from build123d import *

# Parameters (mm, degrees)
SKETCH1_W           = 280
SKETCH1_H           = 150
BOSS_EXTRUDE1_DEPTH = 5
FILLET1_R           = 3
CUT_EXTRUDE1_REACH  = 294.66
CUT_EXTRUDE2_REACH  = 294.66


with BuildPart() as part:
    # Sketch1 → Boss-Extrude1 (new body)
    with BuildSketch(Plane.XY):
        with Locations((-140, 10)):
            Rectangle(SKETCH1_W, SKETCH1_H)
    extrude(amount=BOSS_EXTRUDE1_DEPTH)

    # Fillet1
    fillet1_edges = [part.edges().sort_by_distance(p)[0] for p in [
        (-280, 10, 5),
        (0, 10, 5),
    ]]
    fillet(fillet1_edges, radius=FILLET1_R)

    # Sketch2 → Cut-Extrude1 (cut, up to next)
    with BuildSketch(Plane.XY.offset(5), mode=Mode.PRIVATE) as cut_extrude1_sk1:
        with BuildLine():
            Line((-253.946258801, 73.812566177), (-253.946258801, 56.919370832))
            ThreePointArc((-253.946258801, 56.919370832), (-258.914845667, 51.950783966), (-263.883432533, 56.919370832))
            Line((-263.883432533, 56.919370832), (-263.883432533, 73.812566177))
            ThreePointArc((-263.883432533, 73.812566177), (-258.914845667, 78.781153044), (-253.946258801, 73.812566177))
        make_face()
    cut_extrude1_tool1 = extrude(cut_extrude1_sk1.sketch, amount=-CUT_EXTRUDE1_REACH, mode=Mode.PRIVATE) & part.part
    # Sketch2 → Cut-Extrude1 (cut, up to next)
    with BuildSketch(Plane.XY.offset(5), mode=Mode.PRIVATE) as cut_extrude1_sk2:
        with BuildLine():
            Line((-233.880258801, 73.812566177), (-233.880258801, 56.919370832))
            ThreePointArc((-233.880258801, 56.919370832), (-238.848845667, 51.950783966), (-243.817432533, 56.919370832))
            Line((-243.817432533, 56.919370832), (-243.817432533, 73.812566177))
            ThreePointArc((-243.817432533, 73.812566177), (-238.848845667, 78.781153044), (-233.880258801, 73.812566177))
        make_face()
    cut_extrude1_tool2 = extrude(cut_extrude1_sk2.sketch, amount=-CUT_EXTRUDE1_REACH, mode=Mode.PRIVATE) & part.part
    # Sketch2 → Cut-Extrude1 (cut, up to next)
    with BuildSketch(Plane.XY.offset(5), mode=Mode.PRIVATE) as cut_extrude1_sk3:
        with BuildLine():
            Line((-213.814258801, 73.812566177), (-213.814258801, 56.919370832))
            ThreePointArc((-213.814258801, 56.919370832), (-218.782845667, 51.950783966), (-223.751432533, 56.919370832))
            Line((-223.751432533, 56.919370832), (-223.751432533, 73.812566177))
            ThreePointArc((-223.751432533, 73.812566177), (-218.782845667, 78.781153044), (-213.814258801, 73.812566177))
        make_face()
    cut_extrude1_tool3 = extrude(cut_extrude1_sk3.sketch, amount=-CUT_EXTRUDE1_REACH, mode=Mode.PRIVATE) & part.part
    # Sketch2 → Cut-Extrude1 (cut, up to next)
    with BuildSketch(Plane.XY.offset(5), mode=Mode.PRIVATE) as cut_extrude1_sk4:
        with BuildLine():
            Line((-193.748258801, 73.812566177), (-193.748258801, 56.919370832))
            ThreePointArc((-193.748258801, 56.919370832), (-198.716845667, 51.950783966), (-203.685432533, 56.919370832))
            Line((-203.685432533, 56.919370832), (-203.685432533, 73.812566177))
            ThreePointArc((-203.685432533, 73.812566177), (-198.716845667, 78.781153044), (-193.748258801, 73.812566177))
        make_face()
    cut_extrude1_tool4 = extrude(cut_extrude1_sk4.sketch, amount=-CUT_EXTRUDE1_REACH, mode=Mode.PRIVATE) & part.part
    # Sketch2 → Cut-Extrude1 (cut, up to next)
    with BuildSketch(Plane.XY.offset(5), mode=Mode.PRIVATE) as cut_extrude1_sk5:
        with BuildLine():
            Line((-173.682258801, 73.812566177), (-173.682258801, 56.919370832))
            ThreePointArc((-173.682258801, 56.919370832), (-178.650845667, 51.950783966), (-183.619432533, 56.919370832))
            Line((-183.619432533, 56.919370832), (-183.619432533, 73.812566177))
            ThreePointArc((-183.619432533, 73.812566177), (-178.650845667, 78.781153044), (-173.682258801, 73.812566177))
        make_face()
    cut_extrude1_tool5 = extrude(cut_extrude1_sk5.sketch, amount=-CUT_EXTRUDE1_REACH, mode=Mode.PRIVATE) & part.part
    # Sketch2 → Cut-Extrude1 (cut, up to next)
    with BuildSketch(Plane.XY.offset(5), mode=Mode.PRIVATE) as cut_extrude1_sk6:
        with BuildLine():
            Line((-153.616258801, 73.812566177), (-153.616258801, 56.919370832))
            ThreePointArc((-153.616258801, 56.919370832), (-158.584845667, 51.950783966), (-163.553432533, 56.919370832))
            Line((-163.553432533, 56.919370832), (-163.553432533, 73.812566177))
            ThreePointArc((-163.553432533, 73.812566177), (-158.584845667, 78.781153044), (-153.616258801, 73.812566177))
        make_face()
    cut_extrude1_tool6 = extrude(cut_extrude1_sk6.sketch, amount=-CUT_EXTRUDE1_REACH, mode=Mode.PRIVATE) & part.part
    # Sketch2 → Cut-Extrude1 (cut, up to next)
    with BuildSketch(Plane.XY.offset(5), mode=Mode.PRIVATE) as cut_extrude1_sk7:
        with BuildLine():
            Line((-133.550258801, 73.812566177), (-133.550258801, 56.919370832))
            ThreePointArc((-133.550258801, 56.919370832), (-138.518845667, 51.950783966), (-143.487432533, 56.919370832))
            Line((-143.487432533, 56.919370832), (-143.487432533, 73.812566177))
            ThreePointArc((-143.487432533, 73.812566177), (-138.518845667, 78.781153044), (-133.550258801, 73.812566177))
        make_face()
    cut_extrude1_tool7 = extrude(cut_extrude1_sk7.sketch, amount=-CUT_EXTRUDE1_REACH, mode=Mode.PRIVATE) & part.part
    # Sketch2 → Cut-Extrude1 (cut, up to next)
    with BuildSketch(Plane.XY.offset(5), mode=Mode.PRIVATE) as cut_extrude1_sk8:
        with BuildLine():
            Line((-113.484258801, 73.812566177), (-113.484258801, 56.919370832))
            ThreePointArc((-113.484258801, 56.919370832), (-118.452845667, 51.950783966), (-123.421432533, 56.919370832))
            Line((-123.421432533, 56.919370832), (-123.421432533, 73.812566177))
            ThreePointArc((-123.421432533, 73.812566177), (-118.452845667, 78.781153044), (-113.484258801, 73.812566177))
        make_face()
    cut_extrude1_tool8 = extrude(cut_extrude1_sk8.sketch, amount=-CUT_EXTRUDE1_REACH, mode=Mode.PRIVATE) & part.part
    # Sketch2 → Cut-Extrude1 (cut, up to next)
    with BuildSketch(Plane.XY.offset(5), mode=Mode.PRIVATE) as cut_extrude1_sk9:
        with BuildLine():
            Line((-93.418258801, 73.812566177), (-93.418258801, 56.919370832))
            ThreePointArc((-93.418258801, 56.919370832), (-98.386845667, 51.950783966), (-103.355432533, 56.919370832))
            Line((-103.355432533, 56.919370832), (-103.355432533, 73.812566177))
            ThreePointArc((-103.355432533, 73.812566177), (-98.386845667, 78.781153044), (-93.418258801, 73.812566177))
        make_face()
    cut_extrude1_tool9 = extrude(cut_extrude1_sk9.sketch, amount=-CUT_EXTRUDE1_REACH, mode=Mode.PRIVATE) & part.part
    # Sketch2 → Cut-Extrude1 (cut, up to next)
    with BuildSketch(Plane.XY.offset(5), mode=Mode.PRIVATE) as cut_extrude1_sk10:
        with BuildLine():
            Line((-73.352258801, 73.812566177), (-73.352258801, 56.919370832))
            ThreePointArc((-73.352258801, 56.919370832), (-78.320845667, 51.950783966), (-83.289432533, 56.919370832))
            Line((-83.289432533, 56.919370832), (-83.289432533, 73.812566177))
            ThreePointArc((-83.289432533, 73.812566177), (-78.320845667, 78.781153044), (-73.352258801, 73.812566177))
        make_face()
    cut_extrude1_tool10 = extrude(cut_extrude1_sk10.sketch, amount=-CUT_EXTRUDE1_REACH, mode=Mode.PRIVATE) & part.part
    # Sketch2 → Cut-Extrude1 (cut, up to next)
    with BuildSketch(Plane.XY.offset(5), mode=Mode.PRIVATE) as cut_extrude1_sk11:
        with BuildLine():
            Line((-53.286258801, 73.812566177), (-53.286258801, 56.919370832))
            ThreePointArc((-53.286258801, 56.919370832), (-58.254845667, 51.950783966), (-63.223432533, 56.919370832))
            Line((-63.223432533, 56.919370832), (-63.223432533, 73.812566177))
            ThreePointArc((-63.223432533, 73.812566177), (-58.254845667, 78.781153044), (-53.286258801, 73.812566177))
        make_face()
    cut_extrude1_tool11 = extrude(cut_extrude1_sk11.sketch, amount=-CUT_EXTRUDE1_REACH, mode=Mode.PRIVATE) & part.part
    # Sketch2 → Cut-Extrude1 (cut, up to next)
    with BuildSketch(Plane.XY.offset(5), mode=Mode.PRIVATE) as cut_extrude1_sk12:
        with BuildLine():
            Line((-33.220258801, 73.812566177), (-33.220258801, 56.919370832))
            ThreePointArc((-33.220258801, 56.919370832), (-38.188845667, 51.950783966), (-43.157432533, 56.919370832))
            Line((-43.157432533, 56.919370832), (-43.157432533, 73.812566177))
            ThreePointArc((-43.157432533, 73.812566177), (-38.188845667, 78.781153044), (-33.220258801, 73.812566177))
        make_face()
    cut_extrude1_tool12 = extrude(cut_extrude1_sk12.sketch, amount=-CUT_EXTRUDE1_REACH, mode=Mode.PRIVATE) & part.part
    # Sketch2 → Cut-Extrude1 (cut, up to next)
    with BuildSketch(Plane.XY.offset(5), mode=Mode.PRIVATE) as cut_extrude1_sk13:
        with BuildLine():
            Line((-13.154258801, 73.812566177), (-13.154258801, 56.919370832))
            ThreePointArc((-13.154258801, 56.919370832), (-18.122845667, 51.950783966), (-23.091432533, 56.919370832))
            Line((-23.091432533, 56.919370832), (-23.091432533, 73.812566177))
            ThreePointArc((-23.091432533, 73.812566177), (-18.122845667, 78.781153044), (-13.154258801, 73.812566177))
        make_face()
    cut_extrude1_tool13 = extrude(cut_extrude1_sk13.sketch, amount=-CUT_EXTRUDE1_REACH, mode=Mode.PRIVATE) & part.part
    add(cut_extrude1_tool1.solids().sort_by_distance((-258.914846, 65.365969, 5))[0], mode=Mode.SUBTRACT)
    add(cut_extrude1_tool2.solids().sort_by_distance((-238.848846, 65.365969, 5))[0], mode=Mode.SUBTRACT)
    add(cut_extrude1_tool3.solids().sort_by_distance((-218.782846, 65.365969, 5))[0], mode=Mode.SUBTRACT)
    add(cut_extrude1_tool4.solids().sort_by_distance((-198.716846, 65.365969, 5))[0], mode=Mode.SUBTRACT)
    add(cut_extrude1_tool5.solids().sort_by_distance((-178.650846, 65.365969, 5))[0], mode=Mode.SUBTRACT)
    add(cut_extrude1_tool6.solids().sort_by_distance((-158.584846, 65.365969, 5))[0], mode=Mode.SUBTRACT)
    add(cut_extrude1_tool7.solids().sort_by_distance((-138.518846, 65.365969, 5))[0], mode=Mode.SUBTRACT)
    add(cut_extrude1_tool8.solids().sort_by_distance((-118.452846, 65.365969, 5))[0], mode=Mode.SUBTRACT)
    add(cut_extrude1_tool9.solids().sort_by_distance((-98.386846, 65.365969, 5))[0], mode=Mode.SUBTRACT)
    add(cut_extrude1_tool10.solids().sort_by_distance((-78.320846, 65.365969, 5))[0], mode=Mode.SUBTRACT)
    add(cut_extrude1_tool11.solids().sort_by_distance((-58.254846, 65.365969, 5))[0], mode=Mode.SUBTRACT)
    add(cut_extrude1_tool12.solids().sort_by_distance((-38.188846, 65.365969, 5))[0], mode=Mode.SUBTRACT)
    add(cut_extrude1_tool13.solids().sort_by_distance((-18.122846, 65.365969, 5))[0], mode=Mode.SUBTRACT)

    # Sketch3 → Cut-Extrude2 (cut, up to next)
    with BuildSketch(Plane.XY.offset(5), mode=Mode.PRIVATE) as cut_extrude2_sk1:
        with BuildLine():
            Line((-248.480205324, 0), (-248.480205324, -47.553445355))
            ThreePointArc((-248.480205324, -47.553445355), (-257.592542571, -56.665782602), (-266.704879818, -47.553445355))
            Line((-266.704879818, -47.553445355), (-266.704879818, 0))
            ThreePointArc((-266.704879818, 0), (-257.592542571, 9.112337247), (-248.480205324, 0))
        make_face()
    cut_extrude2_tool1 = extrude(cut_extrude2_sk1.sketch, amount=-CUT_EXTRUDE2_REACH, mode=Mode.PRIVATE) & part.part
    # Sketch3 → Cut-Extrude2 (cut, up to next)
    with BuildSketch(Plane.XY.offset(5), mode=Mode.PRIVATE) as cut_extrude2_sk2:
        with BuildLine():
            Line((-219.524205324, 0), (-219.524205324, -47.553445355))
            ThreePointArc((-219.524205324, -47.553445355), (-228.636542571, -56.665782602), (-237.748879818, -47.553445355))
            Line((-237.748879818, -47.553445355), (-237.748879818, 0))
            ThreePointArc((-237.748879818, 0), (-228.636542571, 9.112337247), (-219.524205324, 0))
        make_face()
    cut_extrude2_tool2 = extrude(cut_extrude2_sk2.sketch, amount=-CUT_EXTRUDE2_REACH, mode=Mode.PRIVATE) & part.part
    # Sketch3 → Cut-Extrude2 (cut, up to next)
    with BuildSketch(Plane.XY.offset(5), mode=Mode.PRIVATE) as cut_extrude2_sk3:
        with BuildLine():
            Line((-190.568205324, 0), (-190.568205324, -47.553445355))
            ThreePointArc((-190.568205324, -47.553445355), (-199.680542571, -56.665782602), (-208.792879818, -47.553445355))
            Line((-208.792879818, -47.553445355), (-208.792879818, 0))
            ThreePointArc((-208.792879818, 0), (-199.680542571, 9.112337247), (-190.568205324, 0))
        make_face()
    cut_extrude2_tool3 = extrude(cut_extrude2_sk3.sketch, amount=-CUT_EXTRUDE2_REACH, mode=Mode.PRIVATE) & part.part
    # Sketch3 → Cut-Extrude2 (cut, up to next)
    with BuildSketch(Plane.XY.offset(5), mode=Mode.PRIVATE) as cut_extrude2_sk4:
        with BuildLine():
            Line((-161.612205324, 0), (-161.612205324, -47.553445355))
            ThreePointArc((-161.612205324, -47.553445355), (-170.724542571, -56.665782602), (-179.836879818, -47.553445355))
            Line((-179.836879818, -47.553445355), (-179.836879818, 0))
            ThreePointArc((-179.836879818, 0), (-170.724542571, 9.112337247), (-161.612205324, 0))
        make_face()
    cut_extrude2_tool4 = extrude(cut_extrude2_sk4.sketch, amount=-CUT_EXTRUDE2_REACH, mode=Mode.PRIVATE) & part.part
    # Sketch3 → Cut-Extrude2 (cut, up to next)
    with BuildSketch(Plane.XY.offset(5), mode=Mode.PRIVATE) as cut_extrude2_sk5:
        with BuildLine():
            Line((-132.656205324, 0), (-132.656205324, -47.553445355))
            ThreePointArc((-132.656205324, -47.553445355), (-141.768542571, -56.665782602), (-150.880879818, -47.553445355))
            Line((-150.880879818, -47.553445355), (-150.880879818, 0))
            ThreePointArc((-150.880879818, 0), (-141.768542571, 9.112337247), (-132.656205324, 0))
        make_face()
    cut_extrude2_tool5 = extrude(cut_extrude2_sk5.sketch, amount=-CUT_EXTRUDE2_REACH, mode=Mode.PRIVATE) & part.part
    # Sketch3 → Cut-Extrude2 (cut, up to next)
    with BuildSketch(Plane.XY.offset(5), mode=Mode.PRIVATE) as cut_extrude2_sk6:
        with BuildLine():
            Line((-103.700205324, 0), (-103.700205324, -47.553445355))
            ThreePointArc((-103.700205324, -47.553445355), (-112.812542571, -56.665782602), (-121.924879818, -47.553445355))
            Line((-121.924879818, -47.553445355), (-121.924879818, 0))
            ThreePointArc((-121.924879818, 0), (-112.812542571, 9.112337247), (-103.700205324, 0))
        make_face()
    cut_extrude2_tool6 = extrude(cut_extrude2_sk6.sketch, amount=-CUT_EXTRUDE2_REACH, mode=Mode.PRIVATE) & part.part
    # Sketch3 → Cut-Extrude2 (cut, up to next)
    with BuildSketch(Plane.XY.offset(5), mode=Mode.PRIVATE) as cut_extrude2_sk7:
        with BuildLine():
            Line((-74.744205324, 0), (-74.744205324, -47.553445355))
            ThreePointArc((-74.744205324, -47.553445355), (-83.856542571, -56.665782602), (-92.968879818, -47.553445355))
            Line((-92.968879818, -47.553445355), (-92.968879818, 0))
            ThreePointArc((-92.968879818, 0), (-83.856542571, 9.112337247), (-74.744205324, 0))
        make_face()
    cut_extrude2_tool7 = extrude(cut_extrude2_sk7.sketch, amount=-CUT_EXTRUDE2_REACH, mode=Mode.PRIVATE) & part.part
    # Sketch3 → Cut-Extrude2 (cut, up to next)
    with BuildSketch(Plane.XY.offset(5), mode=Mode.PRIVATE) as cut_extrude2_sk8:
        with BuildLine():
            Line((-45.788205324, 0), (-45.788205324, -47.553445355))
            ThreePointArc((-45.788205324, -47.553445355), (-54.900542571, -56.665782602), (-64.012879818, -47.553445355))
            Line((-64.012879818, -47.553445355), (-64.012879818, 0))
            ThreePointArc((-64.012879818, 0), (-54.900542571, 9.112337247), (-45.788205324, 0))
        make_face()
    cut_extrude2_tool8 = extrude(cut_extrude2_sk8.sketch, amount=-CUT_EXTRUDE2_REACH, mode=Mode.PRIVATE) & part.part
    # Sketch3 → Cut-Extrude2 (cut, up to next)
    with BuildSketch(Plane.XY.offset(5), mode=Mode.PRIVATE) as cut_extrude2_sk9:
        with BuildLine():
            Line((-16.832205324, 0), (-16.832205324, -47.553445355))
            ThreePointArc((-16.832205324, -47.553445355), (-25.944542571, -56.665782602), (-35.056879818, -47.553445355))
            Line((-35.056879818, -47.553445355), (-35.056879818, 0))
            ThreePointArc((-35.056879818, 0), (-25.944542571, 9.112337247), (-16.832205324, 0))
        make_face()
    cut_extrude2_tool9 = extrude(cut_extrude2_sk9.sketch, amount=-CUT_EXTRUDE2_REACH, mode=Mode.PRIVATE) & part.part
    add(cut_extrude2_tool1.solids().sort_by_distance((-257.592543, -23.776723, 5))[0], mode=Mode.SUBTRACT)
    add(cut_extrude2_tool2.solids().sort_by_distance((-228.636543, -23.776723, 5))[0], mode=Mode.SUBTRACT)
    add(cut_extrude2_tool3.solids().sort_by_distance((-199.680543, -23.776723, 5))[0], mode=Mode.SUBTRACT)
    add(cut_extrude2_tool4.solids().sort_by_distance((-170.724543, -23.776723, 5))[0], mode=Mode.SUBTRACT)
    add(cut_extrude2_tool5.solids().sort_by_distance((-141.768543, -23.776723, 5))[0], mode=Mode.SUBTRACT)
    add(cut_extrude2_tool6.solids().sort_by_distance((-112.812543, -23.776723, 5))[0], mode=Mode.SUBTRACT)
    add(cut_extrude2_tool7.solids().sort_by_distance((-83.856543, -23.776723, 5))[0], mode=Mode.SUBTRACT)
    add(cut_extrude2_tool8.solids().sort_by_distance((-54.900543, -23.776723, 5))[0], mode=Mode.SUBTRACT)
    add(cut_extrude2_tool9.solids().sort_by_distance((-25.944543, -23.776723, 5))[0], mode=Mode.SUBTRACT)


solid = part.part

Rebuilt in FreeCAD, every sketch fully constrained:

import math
import FreeCAD as App
import Part
import Sketcher


def edges_at(feature, points):
    """Names of the edges that pass closest to the given points."""
    edges = feature.Shape.Edges
    near = lambda p: min(range(len(edges)), key=lambda i: edges[i].distToShape(Part.Vertex(*p))[0])
    return sorted({f"Edge{near(p) + 1}" for p in points})

doc = App.newDocument("Part")
body = doc.addObject("PartDesign::Body", "Body")

sketch1 = body.newObject("Sketcher::SketchObject", "Sketch")
sketch1.AttachmentSupport = (doc.getObject("XY_Plane"), [""])
sketch1.MapMode = "FlatFace"
sketch1.addGeometry(Part.LineSegment(App.Vector(-280, 85, 0), App.Vector(-280, -65, 0)), False)
sketch1.addGeometry(Part.LineSegment(App.Vector(-280, -65, 0), App.Vector(0, -65, 0)), False)
sketch1.addGeometry(Part.LineSegment(App.Vector(0, -65, 0), App.Vector(0, 85, 0)), False)
sketch1.addGeometry(Part.LineSegment(App.Vector(0, 85, 0), App.Vector(-280, 85, 0)), False)
sketch1.addConstraint(Sketcher.Constraint("Coincident", 0, 2, 1, 1))
sketch1.addConstraint(Sketcher.Constraint("Coincident", 1, 2, 2, 1))
sketch1.addConstraint(Sketcher.Constraint("Coincident", 2, 2, 3, 1))
sketch1.addConstraint(Sketcher.Constraint("Coincident", 3, 2, 0, 1))
sketch1.addConstraint(Sketcher.Constraint("Vertical", 0))
sketch1.addConstraint(Sketcher.Constraint("Horizontal", 1))
sketch1.addConstraint(Sketcher.Constraint("Vertical", 2))
sketch1.addConstraint(Sketcher.Constraint("Horizontal", 3))
sketch1.addConstraint(Sketcher.Constraint("PointOnObject", 1, 2, -2))
sketch1.addConstraint(Sketcher.Constraint("DistanceX", 1, 1, 1, 2, 280.0))
sketch1.addConstraint(Sketcher.Constraint("DistanceY", 0, 2, 0, 1, 150.0))
sketch1.addConstraint(Sketcher.Constraint("DistanceY", 0, 2, -1, 1, 65.0))
pad1 = body.newObject("PartDesign::Pad", "Pad")
pad1.Profile = sketch1
pad1.Length = 5
doc.recompute()

fillet = body.newObject("PartDesign::Fillet", "Fillet")
fillet.Base = (pad1, edges_at(pad1, [(-280, 10, 5), (0, 10, 5)]))
fillet.Radius = 3

sketch2 = body.newObject("Sketcher::SketchObject", "Sketch001")
sketch2.AttachmentSupport = (doc.getObject("XY_Plane"), [""])
sketch2.MapMode = "FlatFace"
sketch2.AttachmentOffset = App.Placement(App.Vector(0, 0, 5), App.Rotation())
sketch2.addGeometry(Part.LineSegment(App.Vector(-253.9, 56.9, 0), App.Vector(-253.9, 73.8, 0)), False)
sketch2.addGeometry(Part.ArcOfCircle(Part.Circle(App.Vector(-258.9, 73.8, 0), App.Vector(0, 0, 1), 5), math.radians(0), math.radians(180)), False)
sketch2.addGeometry(Part.LineSegment(App.Vector(-263.9, 73.8, 0), App.Vector(-263.9, 56.9, 0)), False)
sketch2.addGeometry(Part.ArcOfCircle(Part.Circle(App.Vector(-258.9, 56.9, 0), App.Vector(0, 0, 1), 5), math.radians(180), math.radians(360)), False)
sketch2.addConstraint(Sketcher.Constraint("Tangent", 0, 2, 1, 1))
sketch2.addConstraint(Sketcher.Constraint("Tangent", 1, 2, 2, 1))
sketch2.addConstraint(Sketcher.Constraint("Tangent", 2, 2, 3, 1))
sketch2.addConstraint(Sketcher.Constraint("Tangent", 3, 2, 0, 1))
sketch2.addConstraint(Sketcher.Constraint("Vertical", 0))
sketch2.addConstraint(Sketcher.Constraint("Vertical", 2))
sketch2.addConstraint(Sketcher.Constraint("Radius", 1, 4.968587))
sketch2.addConstraint(Sketcher.Constraint("DistanceY", 0, 1, 0, 2, 16.893195))
sketch2.addConstraint(Sketcher.Constraint("DistanceY", -1, 1, 3, 3, 56.919371))
sketch2.addConstraint(Sketcher.Constraint("DistanceX", 0, 2, -1, 1, 253.946259))
pocket1 = body.newObject("PartDesign::Pocket", "Pocket")
pocket1.Profile = sketch2
pocket1.Type = "UpToFirst"

sketch3 = body.newObject("Sketcher::SketchObject", "Sketch002")
sketch3.AttachmentSupport = (doc.getObject("XY_Plane"), [""])
sketch3.MapMode = "FlatFace"
sketch3.AttachmentOffset = App.Placement(App.Vector(0, 0, 5), App.Rotation())
sketch3.addGeometry(Part.LineSegment(App.Vector(-233.9, 56.9, 0), App.Vector(-233.9, 73.8, 0)), False)
sketch3.addGeometry(Part.ArcOfCircle(Part.Circle(App.Vector(-238.8, 73.8, 0), App.Vector(0, 0, 1), 5), math.radians(0), math.radians(180)), False)
sketch3.addGeometry(Part.LineSegment(App.Vector(-243.8, 73.8, 0), App.Vector(-243.8, 56.9, 0)), False)
sketch3.addGeometry(Part.ArcOfCircle(Part.Circle(App.Vector(-238.8, 56.9, 0), App.Vector(0, 0, 1), 5), math.radians(180), math.radians(360)), False)
sketch3.addConstraint(Sketcher.Constraint("Tangent", 0, 2, 1, 1))
sketch3.addConstraint(Sketcher.Constraint("Tangent", 1, 2, 2, 1))
sketch3.addConstraint(Sketcher.Constraint("Tangent", 2, 2, 3, 1))
sketch3.addConstraint(Sketcher.Constraint("Tangent", 3, 2, 0, 1))
sketch3.addConstraint(Sketcher.Constraint("Vertical", 0))
sketch3.addConstraint(Sketcher.Constraint("Vertical", 2))
sketch3.addConstraint(Sketcher.Constraint("Radius", 1, 4.968587))
sketch3.addConstraint(Sketcher.Constraint("DistanceY", 0, 1, 0, 2, 16.893195))
sketch3.addConstraint(Sketcher.Constraint("DistanceY", -1, 1, 3, 3, 56.919371))
sketch3.addConstraint(Sketcher.Constraint("DistanceX", 0, 2, -1, 1, 233.880259))
pocket2 = body.newObject("PartDesign::Pocket", "Pocket001")
pocket2.Profile = sketch3
pocket2.Type = "UpToFirst"

sketch4 = body.newObject("Sketcher::SketchObject", "Sketch003")
sketch4.AttachmentSupport = (doc.getObject("XY_Plane"), [""])
sketch4.MapMode = "FlatFace"
sketch4.AttachmentOffset = App.Placement(App.Vector(0, 0, 5), App.Rotation())
sketch4.addGeometry(Part.LineSegment(App.Vector(-213.8, 56.9, 0), App.Vector(-213.8, 73.8, 0)), False)
sketch4.addGeometry(Part.ArcOfCircle(Part.Circle(App.Vector(-218.8, 73.8, 0), App.Vector(0, 0, 1), 5), math.radians(0), math.radians(180)), False)
sketch4.addGeometry(Part.LineSegment(App.Vector(-223.8, 73.8, 0), App.Vector(-223.8, 56.9, 0)), False)
sketch4.addGeometry(Part.ArcOfCircle(Part.Circle(App.Vector(-218.8, 56.9, 0), App.Vector(0, 0, 1), 5), math.radians(180), math.radians(360)), False)
sketch4.addConstraint(Sketcher.Constraint("Tangent", 0, 2, 1, 1))
sketch4.addConstraint(Sketcher.Constraint("Tangent", 1, 2, 2, 1))
sketch4.addConstraint(Sketcher.Constraint("Tangent", 2, 2, 3, 1))
sketch4.addConstraint(Sketcher.Constraint("Tangent", 3, 2, 0, 1))
sketch4.addConstraint(Sketcher.Constraint("Vertical", 0))
sketch4.addConstraint(Sketcher.Constraint("Vertical", 2))
sketch4.addConstraint(Sketcher.Constraint("Radius", 1, 4.968587))
sketch4.addConstraint(Sketcher.Constraint("DistanceY", 0, 1, 0, 2, 16.893195))
sketch4.addConstraint(Sketcher.Constraint("DistanceY", -1, 1, 3, 3, 56.919371))
sketch4.addConstraint(Sketcher.Constraint("DistanceX", 0, 2, -1, 1, 213.814259))
pocket3 = body.newObject("PartDesign::Pocket", "Pocket002")
pocket3.Profile = sketch4
pocket3.Type = "UpToFirst"

sketch5 = body.newObject("Sketcher::SketchObject", "Sketch004")
sketch5.AttachmentSupport = (doc.getObject("XY_Plane"), [""])
sketch5.MapMode = "FlatFace"
sketch5.AttachmentOffset = App.Placement(App.Vector(0, 0, 5), App.Rotation())
sketch5.addGeometry(Part.LineSegment(App.Vector(-193.7, 56.9, 0), App.Vector(-193.7, 73.8, 0)), False)
sketch5.addGeometry(Part.ArcOfCircle(Part.Circle(App.Vector(-198.7, 73.8, 0), App.Vector(0, 0, 1), 5), math.radians(0), math.radians(180)), False)
sketch5.addGeometry(Part.LineSegment(App.Vector(-203.7, 73.8, 0), App.Vector(-203.7, 56.9, 0)), False)
sketch5.addGeometry(Part.ArcOfCircle(Part.Circle(App.Vector(-198.7, 56.9, 0), App.Vector(0, 0, 1), 5), math.radians(180), math.radians(360)), False)
sketch5.addConstraint(Sketcher.Constraint("Tangent", 0, 2, 1, 1))
sketch5.addConstraint(Sketcher.Constraint("Tangent", 1, 2, 2, 1))
sketch5.addConstraint(Sketcher.Constraint("Tangent", 2, 2, 3, 1))
sketch5.addConstraint(Sketcher.Constraint("Tangent", 3, 2, 0, 1))
sketch5.addConstraint(Sketcher.Constraint("Vertical", 0))
sketch5.addConstraint(Sketcher.Constraint("Vertical", 2))
sketch5.addConstraint(Sketcher.Constraint("Radius", 1, 4.968587))
sketch5.addConstraint(Sketcher.Constraint("DistanceY", 0, 1, 0, 2, 16.893195))
sketch5.addConstraint(Sketcher.Constraint("DistanceY", -1, 1, 3, 3, 56.919371))
sketch5.addConstraint(Sketcher.Constraint("DistanceX", 0, 2, -1, 1, 193.748259))
pocket4 = body.newObject("PartDesign::Pocket", "Pocket003")
pocket4.Profile = sketch5
pocket4.Type = "UpToFirst"

sketch6 = body.newObject("Sketcher::SketchObject", "Sketch005")
sketch6.AttachmentSupport = (doc.getObject("XY_Plane"), [""])
sketch6.MapMode = "FlatFace"
sketch6.AttachmentOffset = App.Placement(App.Vector(0, 0, 5), App.Rotation())
sketch6.addGeometry(Part.LineSegment(App.Vector(-173.7, 56.9, 0), App.Vector(-173.7, 73.8, 0)), False)
sketch6.addGeometry(Part.ArcOfCircle(Part.Circle(App.Vector(-178.7, 73.8, 0), App.Vector(0, 0, 1), 5), math.radians(0), math.radians(180)), False)
sketch6.addGeometry(Part.LineSegment(App.Vector(-183.6, 73.8, 0), App.Vector(-183.6, 56.9, 0)), False)
sketch6.addGeometry(Part.ArcOfCircle(Part.Circle(App.Vector(-178.7, 56.9, 0), App.Vector(0, 0, 1), 5), math.radians(180), math.radians(360)), False)
sketch6.addConstraint(Sketcher.Constraint("Tangent", 0, 2, 1, 1))
sketch6.addConstraint(Sketcher.Constraint("Tangent", 1, 2, 2, 1))
sketch6.addConstraint(Sketcher.Constraint("Tangent", 2, 2, 3, 1))
sketch6.addConstraint(Sketcher.Constraint("Tangent", 3, 2, 0, 1))
sketch6.addConstraint(Sketcher.Constraint("Vertical", 0))
sketch6.addConstraint(Sketcher.Constraint("Vertical", 2))
sketch6.addConstraint(Sketcher.Constraint("Radius", 1, 4.968587))
sketch6.addConstraint(Sketcher.Constraint("DistanceY", 0, 1, 0, 2, 16.893195))
sketch6.addConstraint(Sketcher.Constraint("DistanceY", -1, 1, 3, 3, 56.919371))
sketch6.addConstraint(Sketcher.Constraint("DistanceX", 0, 2, -1, 1, 173.682259))
pocket5 = body.newObject("PartDesign::Pocket", "Pocket004")
pocket5.Profile = sketch6
pocket5.Type = "UpToFirst"

sketch7 = body.newObject("Sketcher::SketchObject", "Sketch006")
sketch7.AttachmentSupport = (doc.getObject("XY_Plane"), [""])
sketch7.MapMode = "FlatFace"
sketch7.AttachmentOffset = App.Placement(App.Vector(0, 0, 5), App.Rotation())
sketch7.addGeometry(Part.LineSegment(App.Vector(-153.6, 56.9, 0), App.Vector(-153.6, 73.8, 0)), False)
sketch7.addGeometry(Part.ArcOfCircle(Part.Circle(App.Vector(-158.6, 73.8, 0), App.Vector(0, 0, 1), 5), math.radians(0), math.radians(180)), False)
sketch7.addGeometry(Part.LineSegment(App.Vector(-163.6, 73.8, 0), App.Vector(-163.6, 56.9, 0)), False)
sketch7.addGeometry(Part.ArcOfCircle(Part.Circle(App.Vector(-158.6, 56.9, 0), App.Vector(0, 0, 1), 5), math.radians(180), math.radians(360)), False)
sketch7.addConstraint(Sketcher.Constraint("Tangent", 0, 2, 1, 1))
sketch7.addConstraint(Sketcher.Constraint("Tangent", 1, 2, 2, 1))
sketch7.addConstraint(Sketcher.Constraint("Tangent", 2, 2, 3, 1))
sketch7.addConstraint(Sketcher.Constraint("Tangent", 3, 2, 0, 1))
sketch7.addConstraint(Sketcher.Constraint("Vertical", 0))
sketch7.addConstraint(Sketcher.Constraint("Vertical", 2))
sketch7.addConstraint(Sketcher.Constraint("Radius", 1, 4.968587))
sketch7.addConstraint(Sketcher.Constraint("DistanceY", 0, 1, 0, 2, 16.893195))
sketch7.addConstraint(Sketcher.Constraint("DistanceY", -1, 1, 3, 3, 56.919371))
sketch7.addConstraint(Sketcher.Constraint("DistanceX", 0, 2, -1, 1, 153.616259))
pocket6 = body.newObject("PartDesign::Pocket", "Pocket005")
pocket6.Profile = sketch7
pocket6.Type = "UpToFirst"

sketch8 = body.newObject("Sketcher::SketchObject", "Sketch007")
sketch8.AttachmentSupport = (doc.getObject("XY_Plane"), [""])
sketch8.MapMode = "FlatFace"
sketch8.AttachmentOffset = App.Placement(App.Vector(0, 0, 5), App.Rotation())
sketch8.addGeometry(Part.LineSegment(App.Vector(-133.6, 56.9, 0), App.Vector(-133.6, 73.8, 0)), False)
sketch8.addGeometry(Part.ArcOfCircle(Part.Circle(App.Vector(-138.5, 73.8, 0), App.Vector(0, 0, 1), 5), math.radians(0), math.radians(180)), False)
sketch8.addGeometry(Part.LineSegment(App.Vector(-143.5, 73.8, 0), App.Vector(-143.5, 56.9, 0)), False)
sketch8.addGeometry(Part.ArcOfCircle(Part.Circle(App.Vector(-138.5, 56.9, 0), App.Vector(0, 0, 1), 5), math.radians(180), math.radians(360)), False)
sketch8.addConstraint(Sketcher.Constraint("Tangent", 0, 2, 1, 1))
sketch8.addConstraint(Sketcher.Constraint("Tangent", 1, 2, 2, 1))
sketch8.addConstraint(Sketcher.Constraint("Tangent", 2, 2, 3, 1))
sketch8.addConstraint(Sketcher.Constraint("Tangent", 3, 2, 0, 1))
sketch8.addConstraint(Sketcher.Constraint("Vertical", 0))
sketch8.addConstraint(Sketcher.Constraint("Vertical", 2))
sketch8.addConstraint(Sketcher.Constraint("Radius", 1, 4.968587))
sketch8.addConstraint(Sketcher.Constraint("DistanceY", 0, 1, 0, 2, 16.893195))
sketch8.addConstraint(Sketcher.Constraint("DistanceY", -1, 1, 3, 3, 56.919371))
sketch8.addConstraint(Sketcher.Constraint("DistanceX", 0, 2, -1, 1, 133.550259))
pocket7 = body.newObject("PartDesign::Pocket", "Pocket006")
pocket7.Profile = sketch8
pocket7.Type = "UpToFirst"

sketch9 = body.newObject("Sketcher::SketchObject", "Sketch008")
sketch9.AttachmentSupport = (doc.getObject("XY_Plane"), [""])
sketch9.MapMode = "FlatFace"
sketch9.AttachmentOffset = App.Placement(App.Vector(0, 0, 5), App.Rotation())
sketch9.addGeometry(Part.LineSegment(App.Vector(-113.5, 56.9, 0), App.Vector(-113.5, 73.8, 0)), False)
sketch9.addGeometry(Part.ArcOfCircle(Part.Circle(App.Vector(-118.5, 73.8, 0), App.Vector(0, 0, 1), 5), math.radians(0), math.radians(180)), False)
sketch9.addGeometry(Part.LineSegment(App.Vector(-123.4, 73.8, 0), App.Vector(-123.4, 56.9, 0)), False)
sketch9.addGeometry(Part.ArcOfCircle(Part.Circle(App.Vector(-118.5, 56.9, 0), App.Vector(0, 0, 1), 5), math.radians(180), math.radians(360)), False)
sketch9.addConstraint(Sketcher.Constraint("Tangent", 0, 2, 1, 1))
sketch9.addConstraint(Sketcher.Constraint("Tangent", 1, 2, 2, 1))
sketch9.addConstraint(Sketcher.Constraint("Tangent", 2, 2, 3, 1))
sketch9.addConstraint(Sketcher.Constraint("Tangent", 3, 2, 0, 1))
sketch9.addConstraint(Sketcher.Constraint("Vertical", 0))
sketch9.addConstraint(Sketcher.Constraint("Vertical", 2))
sketch9.addConstraint(Sketcher.Constraint("Radius", 1, 4.968587))
sketch9.addConstraint(Sketcher.Constraint("DistanceY", 0, 1, 0, 2, 16.893195))
sketch9.addConstraint(Sketcher.Constraint("DistanceY", -1, 1, 3, 3, 56.919371))
sketch9.addConstraint(Sketcher.Constraint("DistanceX", 0, 2, -1, 1, 113.484259))
pocket8 = body.newObject("PartDesign::Pocket", "Pocket007")
pocket8.Profile = sketch9
pocket8.Type = "UpToFirst"

sketch10 = body.newObject("Sketcher::SketchObject", "Sketch009")
sketch10.AttachmentSupport = (doc.getObject("XY_Plane"), [""])
sketch10.MapMode = "FlatFace"
sketch10.AttachmentOffset = App.Placement(App.Vector(0, 0, 5), App.Rotation())
sketch10.addGeometry(Part.LineSegment(App.Vector(-93.4, 56.9, 0), App.Vector(-93.4, 73.8, 0)), False)
sketch10.addGeometry(Part.ArcOfCircle(Part.Circle(App.Vector(-98.4, 73.8, 0), App.Vector(0, 0, 1), 5), math.radians(0), math.radians(180)), False)
sketch10.addGeometry(Part.LineSegment(App.Vector(-103.4, 73.8, 0), App.Vector(-103.4, 56.9, 0)), False)
sketch10.addGeometry(Part.ArcOfCircle(Part.Circle(App.Vector(-98.4, 56.9, 0), App.Vector(0, 0, 1), 5), math.radians(180), math.radians(360)), False)
sketch10.addConstraint(Sketcher.Constraint("Tangent", 0, 2, 1, 1))
sketch10.addConstraint(Sketcher.Constraint("Tangent", 1, 2, 2, 1))
sketch10.addConstraint(Sketcher.Constraint("Tangent", 2, 2, 3, 1))
sketch10.addConstraint(Sketcher.Constraint("Tangent", 3, 2, 0, 1))
sketch10.addConstraint(Sketcher.Constraint("Vertical", 0))
sketch10.addConstraint(Sketcher.Constraint("Vertical", 2))
sketch10.addConstraint(Sketcher.Constraint("Radius", 1, 4.968587))
sketch10.addConstraint(Sketcher.Constraint("DistanceY", 0, 1, 0, 2, 16.893195))
sketch10.addConstraint(Sketcher.Constraint("DistanceY", -1, 1, 3, 3, 56.919371))
sketch10.addConstraint(Sketcher.Constraint("DistanceX", 0, 2, -1, 1, 93.418259))
pocket9 = body.newObject("PartDesign::Pocket", "Pocket008")
pocket9.Profile = sketch10
pocket9.Type = "UpToFirst"

sketch11 = body.newObject("Sketcher::SketchObject", "Sketch010")
sketch11.AttachmentSupport = (doc.getObject("XY_Plane"), [""])
sketch11.MapMode = "FlatFace"
sketch11.AttachmentOffset = App.Placement(App.Vector(0, 0, 5), App.Rotation())
sketch11.addGeometry(Part.LineSegment(App.Vector(-73.4, 56.9, 0), App.Vector(-73.4, 73.8, 0)), False)
sketch11.addGeometry(Part.ArcOfCircle(Part.Circle(App.Vector(-78.3, 73.8, 0), App.Vector(0, 0, 1), 5), math.radians(0), math.radians(180)), False)
sketch11.addGeometry(Part.LineSegment(App.Vector(-83.3, 73.8, 0), App.Vector(-83.3, 56.9, 0)), False)
sketch11.addGeometry(Part.ArcOfCircle(Part.Circle(App.Vector(-78.3, 56.9, 0), App.Vector(0, 0, 1), 5), math.radians(180), math.radians(360)), False)
sketch11.addConstraint(Sketcher.Constraint("Tangent", 0, 2, 1, 1))
sketch11.addConstraint(Sketcher.Constraint("Tangent", 1, 2, 2, 1))
sketch11.addConstraint(Sketcher.Constraint("Tangent", 2, 2, 3, 1))
sketch11.addConstraint(Sketcher.Constraint("Tangent", 3, 2, 0, 1))
sketch11.addConstraint(Sketcher.Constraint("Vertical", 0))
sketch11.addConstraint(Sketcher.Constraint("Vertical", 2))
sketch11.addConstraint(Sketcher.Constraint("Radius", 1, 4.968587))
sketch11.addConstraint(Sketcher.Constraint("DistanceY", 0, 1, 0, 2, 16.893195))
sketch11.addConstraint(Sketcher.Constraint("DistanceY", -1, 1, 3, 3, 56.919371))
sketch11.addConstraint(Sketcher.Constraint("DistanceX", 0, 2, -1, 1, 73.352259))
pocket10 = body.newObject("PartDesign::Pocket", "Pocket009")
pocket10.Profile = sketch11
pocket10.Type = "UpToFirst"

sketch12 = body.newObject("Sketcher::SketchObject", "Sketch011")
sketch12.AttachmentSupport = (doc.getObject("XY_Plane"), [""])
sketch12.MapMode = "FlatFace"
sketch12.AttachmentOffset = App.Placement(App.Vector(0, 0, 5), App.Rotation())
sketch12.addGeometry(Part.LineSegment(App.Vector(-53.3, 56.9, 0), App.Vector(-53.3, 73.8, 0)), False)
sketch12.addGeometry(Part.ArcOfCircle(Part.Circle(App.Vector(-58.3, 73.8, 0), App.Vector(0, 0, 1), 5), math.radians(0), math.radians(180)), False)
sketch12.addGeometry(Part.LineSegment(App.Vector(-63.2, 73.8, 0), App.Vector(-63.2, 56.9, 0)), False)
sketch12.addGeometry(Part.ArcOfCircle(Part.Circle(App.Vector(-58.3, 56.9, 0), App.Vector(0, 0, 1), 5), math.radians(180), math.radians(360)), False)
sketch12.addConstraint(Sketcher.Constraint("Tangent", 0, 2, 1, 1))
sketch12.addConstraint(Sketcher.Constraint("Tangent", 1, 2, 2, 1))
sketch12.addConstraint(Sketcher.Constraint("Tangent", 2, 2, 3, 1))
sketch12.addConstraint(Sketcher.Constraint("Tangent", 3, 2, 0, 1))
sketch12.addConstraint(Sketcher.Constraint("Vertical", 0))
sketch12.addConstraint(Sketcher.Constraint("Vertical", 2))
sketch12.addConstraint(Sketcher.Constraint("Radius", 1, 4.968587))
sketch12.addConstraint(Sketcher.Constraint("DistanceY", 0, 1, 0, 2, 16.893195))
sketch12.addConstraint(Sketcher.Constraint("DistanceY", -1, 1, 3, 3, 56.919371))
sketch12.addConstraint(Sketcher.Constraint("DistanceX", 0, 2, -1, 1, 53.286259))
pocket11 = body.newObject("PartDesign::Pocket", "Pocket010")
pocket11.Profile = sketch12
pocket11.Type = "UpToFirst"

sketch13 = body.newObject("Sketcher::SketchObject", "Sketch012")
sketch13.AttachmentSupport = (doc.getObject("XY_Plane"), [""])
sketch13.MapMode = "FlatFace"
sketch13.AttachmentOffset = App.Placement(App.Vector(0, 0, 5), App.Rotation())
sketch13.addGeometry(Part.LineSegment(App.Vector(-33.2, 56.9, 0), App.Vector(-33.2, 73.8, 0)), False)
sketch13.addGeometry(Part.ArcOfCircle(Part.Circle(App.Vector(-38.2, 73.8, 0), App.Vector(0, 0, 1), 5), math.radians(0), math.radians(180)), False)
sketch13.addGeometry(Part.LineSegment(App.Vector(-43.2, 73.8, 0), App.Vector(-43.2, 56.9, 0)), False)
sketch13.addGeometry(Part.ArcOfCircle(Part.Circle(App.Vector(-38.2, 56.9, 0), App.Vector(0, 0, 1), 5), math.radians(180), math.radians(360)), False)
sketch13.addConstraint(Sketcher.Constraint("Tangent", 0, 2, 1, 1))
sketch13.addConstraint(Sketcher.Constraint("Tangent", 1, 2, 2, 1))
sketch13.addConstraint(Sketcher.Constraint("Tangent", 2, 2, 3, 1))
sketch13.addConstraint(Sketcher.Constraint("Tangent", 3, 2, 0, 1))
sketch13.addConstraint(Sketcher.Constraint("Vertical", 0))
sketch13.addConstraint(Sketcher.Constraint("Vertical", 2))
sketch13.addConstraint(Sketcher.Constraint("Radius", 1, 4.968587))
sketch13.addConstraint(Sketcher.Constraint("DistanceY", 0, 1, 0, 2, 16.893195))
sketch13.addConstraint(Sketcher.Constraint("DistanceY", -1, 1, 3, 3, 56.919371))
sketch13.addConstraint(Sketcher.Constraint("DistanceX", 0, 2, -1, 1, 33.220259))
pocket12 = body.newObject("PartDesign::Pocket", "Pocket011")
pocket12.Profile = sketch13
pocket12.Type = "UpToFirst"

sketch14 = body.newObject("Sketcher::SketchObject", "Sketch013")
sketch14.AttachmentSupport = (doc.getObject("XY_Plane"), [""])
sketch14.MapMode = "FlatFace"
sketch14.AttachmentOffset = App.Placement(App.Vector(0, 0, 5), App.Rotation())
sketch14.addGeometry(Part.LineSegment(App.Vector(-13.2, 56.9, 0), App.Vector(-13.2, 73.8, 0)), False)
sketch14.addGeometry(Part.ArcOfCircle(Part.Circle(App.Vector(-18.1, 73.8, 0), App.Vector(0, 0, 1), 5), math.radians(0), math.radians(180)), False)
sketch14.addGeometry(Part.LineSegment(App.Vector(-23.1, 73.8, 0), App.Vector(-23.1, 56.9, 0)), False)
sketch14.addGeometry(Part.ArcOfCircle(Part.Circle(App.Vector(-18.1, 56.9, 0), App.Vector(0, 0, 1), 5), math.radians(180), math.radians(360)), False)
sketch14.addConstraint(Sketcher.Constraint("Tangent", 0, 2, 1, 1))
sketch14.addConstraint(Sketcher.Constraint("Tangent", 1, 2, 2, 1))
sketch14.addConstraint(Sketcher.Constraint("Tangent", 2, 2, 3, 1))
sketch14.addConstraint(Sketcher.Constraint("Tangent", 3, 2, 0, 1))
sketch14.addConstraint(Sketcher.Constraint("Vertical", 0))
sketch14.addConstraint(Sketcher.Constraint("Vertical", 2))
sketch14.addConstraint(Sketcher.Constraint("Radius", 1, 4.968587))
sketch14.addConstraint(Sketcher.Constraint("DistanceY", 0, 1, 0, 2, 16.893195))
sketch14.addConstraint(Sketcher.Constraint("DistanceY", -1, 1, 3, 3, 56.919371))
sketch14.addConstraint(Sketcher.Constraint("DistanceX", 0, 2, -1, 1, 13.154259))
pocket13 = body.newObject("PartDesign::Pocket", "Pocket012")
pocket13.Profile = sketch14
pocket13.Type = "UpToFirst"

sketch15 = body.newObject("Sketcher::SketchObject", "Sketch014")
sketch15.AttachmentSupport = (doc.getObject("XY_Plane"), [""])
sketch15.MapMode = "FlatFace"
sketch15.AttachmentOffset = App.Placement(App.Vector(0, 0, 5), App.Rotation())
sketch15.addGeometry(Part.LineSegment(App.Vector(-248, -48, 0), App.Vector(-248, 0, 0)), False)
sketch15.addGeometry(Part.ArcOfCircle(Part.Circle(App.Vector(-258, 0, 0), App.Vector(0, 0, 1), 9), math.radians(0), math.radians(180)), False)
sketch15.addGeometry(Part.LineSegment(App.Vector(-267, 0, 0), App.Vector(-267, -48, 0)), False)
sketch15.addGeometry(Part.ArcOfCircle(Part.Circle(App.Vector(-258, -48, 0), App.Vector(0, 0, 1), 9), math.radians(180), math.radians(360)), False)
sketch15.addConstraint(Sketcher.Constraint("Tangent", 0, 2, 1, 1))
sketch15.addConstraint(Sketcher.Constraint("Tangent", 1, 2, 2, 1))
sketch15.addConstraint(Sketcher.Constraint("Tangent", 2, 2, 3, 1))
sketch15.addConstraint(Sketcher.Constraint("Tangent", 3, 2, 0, 1))
sketch15.addConstraint(Sketcher.Constraint("Vertical", 0))
sketch15.addConstraint(Sketcher.Constraint("Vertical", 2))
sketch15.addConstraint(Sketcher.Constraint("PointOnObject", 1, 3, -1))
sketch15.addConstraint(Sketcher.Constraint("Radius", 1, 9.112337))
sketch15.addConstraint(Sketcher.Constraint("DistanceY", 0, 1, 0, 2, 47.553445))
sketch15.addConstraint(Sketcher.Constraint("DistanceX", 1, 2, -1, 1, 266.70488))
pocket14 = body.newObject("PartDesign::Pocket", "Pocket013")
pocket14.Profile = sketch15
pocket14.Type = "UpToFirst"

sketch16 = body.newObject("Sketcher::SketchObject", "Sketch015")
sketch16.AttachmentSupport = (doc.getObject("XY_Plane"), [""])
sketch16.MapMode = "FlatFace"
sketch16.AttachmentOffset = App.Placement(App.Vector(0, 0, 5), App.Rotation())
sketch16.addGeometry(Part.LineSegment(App.Vector(-220, -48, 0), App.Vector(-220, 0, 0)), False)
sketch16.addGeometry(Part.ArcOfCircle(Part.Circle(App.Vector(-229, 0, 0), App.Vector(0, 0, 1), 9), math.radians(0), math.radians(180)), False)
sketch16.addGeometry(Part.LineSegment(App.Vector(-238, 0, 0), App.Vector(-238, -48, 0)), False)
sketch16.addGeometry(Part.ArcOfCircle(Part.Circle(App.Vector(-229, -48, 0), App.Vector(0, 0, 1), 9), math.radians(180), math.radians(360)), False)
sketch16.addConstraint(Sketcher.Constraint("Tangent", 0, 2, 1, 1))
sketch16.addConstraint(Sketcher.Constraint("Tangent", 1, 2, 2, 1))
sketch16.addConstraint(Sketcher.Constraint("Tangent", 2, 2, 3, 1))
sketch16.addConstraint(Sketcher.Constraint("Tangent", 3, 2, 0, 1))
sketch16.addConstraint(Sketcher.Constraint("Vertical", 0))
sketch16.addConstraint(Sketcher.Constraint("Vertical", 2))
sketch16.addConstraint(Sketcher.Constraint("PointOnObject", 1, 3, -1))
sketch16.addConstraint(Sketcher.Constraint("Radius", 1, 9.112337))
sketch16.addConstraint(Sketcher.Constraint("DistanceY", 0, 1, 0, 2, 47.553445))
sketch16.addConstraint(Sketcher.Constraint("DistanceX", 1, 2, -1, 1, 237.74888))
pocket15 = body.newObject("PartDesign::Pocket", "Pocket014")
pocket15.Profile = sketch16
pocket15.Type = "UpToFirst"

sketch17 = body.newObject("Sketcher::SketchObject", "Sketch016")
sketch17.AttachmentSupport = (doc.getObject("XY_Plane"), [""])
sketch17.MapMode = "FlatFace"
sketch17.AttachmentOffset = App.Placement(App.Vector(0, 0, 5), App.Rotation())
sketch17.addGeometry(Part.LineSegment(App.Vector(-191, -48, 0), App.Vector(-191, 0, 0)), False)
sketch17.addGeometry(Part.ArcOfCircle(Part.Circle(App.Vector(-200, 0, 0), App.Vector(0, 0, 1), 9), math.radians(0), math.radians(180)), False)
sketch17.addGeometry(Part.LineSegment(App.Vector(-209, 0, 0), App.Vector(-209, -48, 0)), False)
sketch17.addGeometry(Part.ArcOfCircle(Part.Circle(App.Vector(-200, -48, 0), App.Vector(0, 0, 1), 9), math.radians(180), math.radians(360)), False)
sketch17.addConstraint(Sketcher.Constraint("Tangent", 0, 2, 1, 1))
sketch17.addConstraint(Sketcher.Constraint("Tangent", 1, 2, 2, 1))
sketch17.addConstraint(Sketcher.Constraint("Tangent", 2, 2, 3, 1))
sketch17.addConstraint(Sketcher.Constraint("Tangent", 3, 2, 0, 1))
sketch17.addConstraint(Sketcher.Constraint("Vertical", 0))
sketch17.addConstraint(Sketcher.Constraint("Vertical", 2))
sketch17.addConstraint(Sketcher.Constraint("PointOnObject", 1, 3, -1))
sketch17.addConstraint(Sketcher.Constraint("Radius", 1, 9.112337))
sketch17.addConstraint(Sketcher.Constraint("DistanceY", 0, 1, 0, 2, 47.553445))
sketch17.addConstraint(Sketcher.Constraint("DistanceX", 1, 2, -1, 1, 208.79288))
pocket16 = body.newObject("PartDesign::Pocket", "Pocket015")
pocket16.Profile = sketch17
pocket16.Type = "UpToFirst"

sketch18 = body.newObject("Sketcher::SketchObject", "Sketch017")
sketch18.AttachmentSupport = (doc.getObject("XY_Plane"), [""])
sketch18.MapMode = "FlatFace"
sketch18.AttachmentOffset = App.Placement(App.Vector(0, 0, 5), App.Rotation())
sketch18.addGeometry(Part.LineSegment(App.Vector(-162, -48, 0), App.Vector(-162, 0, 0)), False)
sketch18.addGeometry(Part.ArcOfCircle(Part.Circle(App.Vector(-171, 0, 0), App.Vector(0, 0, 1), 9), math.radians(0), math.radians(180)), False)
sketch18.addGeometry(Part.LineSegment(App.Vector(-180, 0, 0), App.Vector(-180, -48, 0)), False)
sketch18.addGeometry(Part.ArcOfCircle(Part.Circle(App.Vector(-171, -48, 0), App.Vector(0, 0, 1), 9), math.radians(180), math.radians(360)), False)
sketch18.addConstraint(Sketcher.Constraint("Tangent", 0, 2, 1, 1))
sketch18.addConstraint(Sketcher.Constraint("Tangent", 1, 2, 2, 1))
sketch18.addConstraint(Sketcher.Constraint("Tangent", 2, 2, 3, 1))
sketch18.addConstraint(Sketcher.Constraint("Tangent", 3, 2, 0, 1))
sketch18.addConstraint(Sketcher.Constraint("Vertical", 0))
sketch18.addConstraint(Sketcher.Constraint("Vertical", 2))
sketch18.addConstraint(Sketcher.Constraint("PointOnObject", 1, 3, -1))
sketch18.addConstraint(Sketcher.Constraint("Radius", 1, 9.112337))
sketch18.addConstraint(Sketcher.Constraint("DistanceY", 0, 1, 0, 2, 47.553445))
sketch18.addConstraint(Sketcher.Constraint("DistanceX", 1, 2, -1, 1, 179.83688))
pocket17 = body.newObject("PartDesign::Pocket", "Pocket016")
pocket17.Profile = sketch18
pocket17.Type = "UpToFirst"

sketch19 = body.newObject("Sketcher::SketchObject", "Sketch018")
sketch19.AttachmentSupport = (doc.getObject("XY_Plane"), [""])
sketch19.MapMode = "FlatFace"
sketch19.AttachmentOffset = App.Placement(App.Vector(0, 0, 5), App.Rotation())
sketch19.addGeometry(Part.LineSegment(App.Vector(-133, -48, 0), App.Vector(-133, 0, 0)), False)
sketch19.addGeometry(Part.ArcOfCircle(Part.Circle(App.Vector(-142, 0, 0), App.Vector(0, 0, 1), 9), math.radians(0), math.radians(180)), False)
sketch19.addGeometry(Part.LineSegment(App.Vector(-151, 0, 0), App.Vector(-151, -48, 0)), False)
sketch19.addGeometry(Part.ArcOfCircle(Part.Circle(App.Vector(-142, -48, 0), App.Vector(0, 0, 1), 9), math.radians(180), math.radians(360)), False)
sketch19.addConstraint(Sketcher.Constraint("Tangent", 0, 2, 1, 1))
sketch19.addConstraint(Sketcher.Constraint("Tangent", 1, 2, 2, 1))
sketch19.addConstraint(Sketcher.Constraint("Tangent", 2, 2, 3, 1))
sketch19.addConstraint(Sketcher.Constraint("Tangent", 3, 2, 0, 1))
sketch19.addConstraint(Sketcher.Constraint("Vertical", 0))
sketch19.addConstraint(Sketcher.Constraint("Vertical", 2))
sketch19.addConstraint(Sketcher.Constraint("PointOnObject", 1, 3, -1))
sketch19.addConstraint(Sketcher.Constraint("Radius", 1, 9.112337))
sketch19.addConstraint(Sketcher.Constraint("DistanceY", 0, 1, 0, 2, 47.553445))
sketch19.addConstraint(Sketcher.Constraint("DistanceX", 1, 2, -1, 1, 150.88088))
pocket18 = body.newObject("PartDesign::Pocket", "Pocket017")
pocket18.Profile = sketch19
pocket18.Type = "UpToFirst"

sketch20 = body.newObject("Sketcher::SketchObject", "Sketch019")
sketch20.AttachmentSupport = (doc.getObject("XY_Plane"), [""])
sketch20.MapMode = "FlatFace"
sketch20.AttachmentOffset = App.Placement(App.Vector(0, 0, 5), App.Rotation())
sketch20.addGeometry(Part.LineSegment(App.Vector(-104, -48, 0), App.Vector(-104, 0, 0)), False)
sketch20.addGeometry(Part.ArcOfCircle(Part.Circle(App.Vector(-113, 0, 0), App.Vector(0, 0, 1), 9), math.radians(0), math.radians(180)), False)
sketch20.addGeometry(Part.LineSegment(App.Vector(-122, 0, 0), App.Vector(-122, -48, 0)), False)
sketch20.addGeometry(Part.ArcOfCircle(Part.Circle(App.Vector(-113, -48, 0), App.Vector(0, 0, 1), 9), math.radians(180), math.radians(360)), False)
sketch20.addConstraint(Sketcher.Constraint("Tangent", 0, 2, 1, 1))
sketch20.addConstraint(Sketcher.Constraint("Tangent", 1, 2, 2, 1))
sketch20.addConstraint(Sketcher.Constraint("Tangent", 2, 2, 3, 1))
sketch20.addConstraint(Sketcher.Constraint("Tangent", 3, 2, 0, 1))
sketch20.addConstraint(Sketcher.Constraint("Vertical", 0))
sketch20.addConstraint(Sketcher.Constraint("Vertical", 2))
sketch20.addConstraint(Sketcher.Constraint("PointOnObject", 1, 3, -1))
sketch20.addConstraint(Sketcher.Constraint("Radius", 1, 9.112337))
sketch20.addConstraint(Sketcher.Constraint("DistanceY", 0, 1, 0, 2, 47.553445))
sketch20.addConstraint(Sketcher.Constraint("DistanceX", 1, 2, -1, 1, 121.92488))
pocket19 = body.newObject("PartDesign::Pocket", "Pocket018")
pocket19.Profile = sketch20
pocket19.Type = "UpToFirst"

sketch21 = body.newObject("Sketcher::SketchObject", "Sketch020")
sketch21.AttachmentSupport = (doc.getObject("XY_Plane"), [""])
sketch21.MapMode = "FlatFace"
sketch21.AttachmentOffset = App.Placement(App.Vector(0, 0, 5), App.Rotation())
sketch21.addGeometry(Part.LineSegment(App.Vector(-75, -48, 0), App.Vector(-75, 0, 0)), False)
sketch21.addGeometry(Part.ArcOfCircle(Part.Circle(App.Vector(-84, 0, 0), App.Vector(0, 0, 1), 9), math.radians(0), math.radians(180)), False)
sketch21.addGeometry(Part.LineSegment(App.Vector(-93, 0, 0), App.Vector(-93, -48, 0)), False)
sketch21.addGeometry(Part.ArcOfCircle(Part.Circle(App.Vector(-84, -48, 0), App.Vector(0, 0, 1), 9), math.radians(180), math.radians(360)), False)
sketch21.addConstraint(Sketcher.Constraint("Tangent", 0, 2, 1, 1))
sketch21.addConstraint(Sketcher.Constraint("Tangent", 1, 2, 2, 1))
sketch21.addConstraint(Sketcher.Constraint("Tangent", 2, 2, 3, 1))
sketch21.addConstraint(Sketcher.Constraint("Tangent", 3, 2, 0, 1))
sketch21.addConstraint(Sketcher.Constraint("Vertical", 0))
sketch21.addConstraint(Sketcher.Constraint("Vertical", 2))
sketch21.addConstraint(Sketcher.Constraint("PointOnObject", 1, 3, -1))
sketch21.addConstraint(Sketcher.Constraint("Radius", 1, 9.112337))
sketch21.addConstraint(Sketcher.Constraint("DistanceY", 0, 1, 0, 2, 47.553445))
sketch21.addConstraint(Sketcher.Constraint("DistanceX", 1, 2, -1, 1, 92.96888))
pocket20 = body.newObject("PartDesign::Pocket", "Pocket019")
pocket20.Profile = sketch21
pocket20.Type = "UpToFirst"

sketch22 = body.newObject("Sketcher::SketchObject", "Sketch021")
sketch22.AttachmentSupport = (doc.getObject("XY_Plane"), [""])
sketch22.MapMode = "FlatFace"
sketch22.AttachmentOffset = App.Placement(App.Vector(0, 0, 5), App.Rotation())
sketch22.addGeometry(Part.LineSegment(App.Vector(-46, -48, 0), App.Vector(-46, 0, 0)), False)
sketch22.addGeometry(Part.ArcOfCircle(Part.Circle(App.Vector(-55, 0, 0), App.Vector(0, 0, 1), 9), math.radians(0), math.radians(180)), False)
sketch22.addGeometry(Part.LineSegment(App.Vector(-64, 0, 0), App.Vector(-64, -48, 0)), False)
sketch22.addGeometry(Part.ArcOfCircle(Part.Circle(App.Vector(-55, -48, 0), App.Vector(0, 0, 1), 9), math.radians(180), math.radians(360)), False)
sketch22.addConstraint(Sketcher.Constraint("Tangent", 0, 2, 1, 1))
sketch22.addConstraint(Sketcher.Constraint("Tangent", 1, 2, 2, 1))
sketch22.addConstraint(Sketcher.Constraint("Tangent", 2, 2, 3, 1))
sketch22.addConstraint(Sketcher.Constraint("Tangent", 3, 2, 0, 1))
sketch22.addConstraint(Sketcher.Constraint("Vertical", 0))
sketch22.addConstraint(Sketcher.Constraint("Vertical", 2))
sketch22.addConstraint(Sketcher.Constraint("PointOnObject", 1, 3, -1))
sketch22.addConstraint(Sketcher.Constraint("Radius", 1, 9.112337))
sketch22.addConstraint(Sketcher.Constraint("DistanceY", 0, 1, 0, 2, 47.553445))
sketch22.addConstraint(Sketcher.Constraint("DistanceX", 1, 2, -1, 1, 64.01288))
pocket21 = body.newObject("PartDesign::Pocket", "Pocket020")
pocket21.Profile = sketch22
pocket21.Type = "UpToFirst"

sketch23 = body.newObject("Sketcher::SketchObject", "Sketch022")
sketch23.AttachmentSupport = (doc.getObject("XY_Plane"), [""])
sketch23.MapMode = "FlatFace"
sketch23.AttachmentOffset = App.Placement(App.Vector(0, 0, 5), App.Rotation())
sketch23.addGeometry(Part.LineSegment(App.Vector(-17, -48, 0), App.Vector(-17, 0, 0)), False)
sketch23.addGeometry(Part.ArcOfCircle(Part.Circle(App.Vector(-26, 0, 0), App.Vector(0, 0, 1), 9), math.radians(0), math.radians(180)), False)
sketch23.addGeometry(Part.LineSegment(App.Vector(-35, 0, 0), App.Vector(-35, -48, 0)), False)
sketch23.addGeometry(Part.ArcOfCircle(Part.Circle(App.Vector(-26, -48, 0), App.Vector(0, 0, 1), 9), math.radians(180), math.radians(360)), False)
sketch23.addConstraint(Sketcher.Constraint("Tangent", 0, 2, 1, 1))
sketch23.addConstraint(Sketcher.Constraint("Tangent", 1, 2, 2, 1))
sketch23.addConstraint(Sketcher.Constraint("Tangent", 2, 2, 3, 1))
sketch23.addConstraint(Sketcher.Constraint("Tangent", 3, 2, 0, 1))
sketch23.addConstraint(Sketcher.Constraint("Vertical", 0))
sketch23.addConstraint(Sketcher.Constraint("Vertical", 2))
sketch23.addConstraint(Sketcher.Constraint("PointOnObject", 1, 3, -1))
sketch23.addConstraint(Sketcher.Constraint("Radius", 1, 9.112337))
sketch23.addConstraint(Sketcher.Constraint("DistanceY", 0, 1, 0, 2, 47.553445))
sketch23.addConstraint(Sketcher.Constraint("DistanceX", 1, 2, -1, 1, 35.05688))
pocket22 = body.newObject("PartDesign::Pocket", "Pocket021")
pocket22.Profile = sketch23
pocket22.Type = "UpToFirst"

doc.recompute()
